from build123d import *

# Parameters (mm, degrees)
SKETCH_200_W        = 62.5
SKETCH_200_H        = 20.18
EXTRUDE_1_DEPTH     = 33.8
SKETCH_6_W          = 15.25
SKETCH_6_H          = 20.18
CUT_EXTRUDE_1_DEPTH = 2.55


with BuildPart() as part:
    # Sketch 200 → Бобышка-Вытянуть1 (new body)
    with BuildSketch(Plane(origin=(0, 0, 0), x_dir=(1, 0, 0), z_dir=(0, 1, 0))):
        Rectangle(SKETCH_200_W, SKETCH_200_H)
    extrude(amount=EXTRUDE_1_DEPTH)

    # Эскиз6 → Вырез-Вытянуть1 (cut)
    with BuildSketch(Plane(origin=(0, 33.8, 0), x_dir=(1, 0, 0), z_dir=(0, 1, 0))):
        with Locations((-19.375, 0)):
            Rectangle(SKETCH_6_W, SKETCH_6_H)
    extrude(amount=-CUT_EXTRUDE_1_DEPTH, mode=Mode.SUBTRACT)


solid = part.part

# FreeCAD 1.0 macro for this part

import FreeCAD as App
import Part
import Sketcher

doc = App.newDocument("Part")
params = doc.addObject("Spreadsheet::Sheet", "Params")
for row, (alias, value) in enumerate([
    ("sketch1_width", "62.5 mm"),
    ("sketch1_height", "20.18 mm"),
    ("pad1_length", "33.8 mm"),
    ("sketch2_width", "15.25 mm"),
    ("sketch2_height", "20.18 mm"),
    ("pocket1_length", "2.55 mm"),
], start=1):
    params.set(f"A{row}", alias)
    params.set(f"B{row}", "=" + value)
    params.setAlias(f"B{row}", alias)

body = doc.addObject("PartDesign::Body", "Body")

# Sketch on XZ plane
sketch1 = body.newObject("Sketcher::SketchObject", "Sketch")
sketch1.AttachmentSupport = (doc.getObject("XZ_Plane"), [""])
sketch1.MapMode = "FlatFace"
sketch1.addGeometry(Part.LineSegment(App.Vector(-31, -10, 0), App.Vector(-31, 10, 0)), False)
sketch1.addGeometry(Part.LineSegment(App.Vector(-31, 10, 0), App.Vector(31, 10, 0)), False)
sketch1.addGeometry(Part.LineSegment(App.Vector(31, 10, 0), App.Vector(31, -10, 0)), False)
sketch1.addGeometry(Part.LineSegment(App.Vector(31, -10, 0), App.Vector(-31, -10, 0)), False)
sketch1.addConstraint(Sketcher.Constraint("Coincident", 0, 2, 1, 1))
sketch1.addConstraint(Sketcher.Constraint("Coincident", 1, 2, 2, 1))
sketch1.addConstraint(Sketcher.Constraint("Coincident", 2, 2, 3, 1))
sketch1.addConstraint(Sketcher.Constraint("Coincident", 3, 2, 0, 1))
sketch1.addConstraint(Sketcher.Constraint("Vertical", 0))
sketch1.addConstraint(Sketcher.Constraint("Horizontal", 1))
sketch1.addConstraint(Sketcher.Constraint("Vertical", 2))
sketch1.addConstraint(Sketcher.Constraint("Horizontal", 3))
sketch1.addConstraint(Sketcher.Constraint("Symmetric", 0, 2, 2, 2, -1, 1))
sketch1.addConstraint(Sketcher.Constraint("DistanceX", 1, 1, 1, 2, 62.5))
sketch1.addConstraint(Sketcher.Constraint("DistanceY", 0, 1, 0, 2, 20.18))
sketch1.setExpression("Constraints[9]", "Params.sketch1_width")
sketch1.setExpression("Constraints[10]", "Params.sketch1_height")
pad1 = body.newObject("PartDesign::Pad", "Pad")
pad1.Profile = sketch1
pad1.setExpression("Length", "Params.pad1_length")
pad1.Reversed = True

# Sketch on XZ plane
sketch2 = body.newObject("Sketcher::SketchObject", "Sketch001")
sketch2.AttachmentSupport = (doc.getObject("XZ_Plane"), [""])
sketch2.MapMode = "FlatFace"
sketch2.AttachmentOffset = App.Placement(App.Vector(0, 0, -33.8), App.Rotation())
sketch2.addGeometry(Part.LineSegment(App.Vector(-27, -10, 0), App.Vector(-27, 10, 0)), False)
sketch2.addGeometry(Part.LineSegment(App.Vector(-27, 10, 0), App.Vector(-12, 10, 0)), False)
sketch2.addGeometry(Part.LineSegment(App.Vector(-12, 10, 0), App.Vector(-12, -10, 0)), False)
sketch2.addGeometry(Part.LineSegment(App.Vector(-12, -10, 0), App.Vector(-27, -10, 0)), False)
sketch2.addConstraint(Sketcher.Constraint("Coincident", 0, 2, 1, 1))
sketch2.addConstraint(Sketcher.Constraint("Coincident", 1, 2, 2, 1))
sketch2.addConstraint(Sketcher.Constraint("Coincident", 2, 2, 3, 1))
sketch2.addConstraint(Sketcher.Constraint("Coincident", 3, 2, 0, 1))
sketch2.addConstraint(Sketcher.Constraint("Vertical", 0))
sketch2.addConstraint(Sketcher.Constraint("Horizontal", 1))
sketch2.addConstraint(Sketcher.Constraint("Vertical", 2))
sketch2.addConstraint(Sketcher.Constraint("Horizontal", 3))
sketch2.addConstraint(Sketcher.Constraint("DistanceX", 0, 2, -1, 1, 27.0))
sketch2.addConstraint(Sketcher.Constraint("DistanceX", 1, 1, 1, 2, 15.25))
sketch2.addConstraint(Sketcher.Constraint("DistanceY", 0, 1, 0, 2, 20.18))
sketch2.addConstraint(Sketcher.Constraint("DistanceY", -1, 1, 0, 2, 10.09))
sketch2.setExpression("Constraints[9]", "Params.sketch2_width")
sketch2.setExpression("Constraints[10]", "Params.sketch2_height")
pocket1 = body.newObject("PartDesign::Pocket", "Pocket")
pocket1.Profile = sketch2
pocket1.setExpression("Length", "Params.pocket1_length")
pocket1.Reversed = True

doc.recompute()
